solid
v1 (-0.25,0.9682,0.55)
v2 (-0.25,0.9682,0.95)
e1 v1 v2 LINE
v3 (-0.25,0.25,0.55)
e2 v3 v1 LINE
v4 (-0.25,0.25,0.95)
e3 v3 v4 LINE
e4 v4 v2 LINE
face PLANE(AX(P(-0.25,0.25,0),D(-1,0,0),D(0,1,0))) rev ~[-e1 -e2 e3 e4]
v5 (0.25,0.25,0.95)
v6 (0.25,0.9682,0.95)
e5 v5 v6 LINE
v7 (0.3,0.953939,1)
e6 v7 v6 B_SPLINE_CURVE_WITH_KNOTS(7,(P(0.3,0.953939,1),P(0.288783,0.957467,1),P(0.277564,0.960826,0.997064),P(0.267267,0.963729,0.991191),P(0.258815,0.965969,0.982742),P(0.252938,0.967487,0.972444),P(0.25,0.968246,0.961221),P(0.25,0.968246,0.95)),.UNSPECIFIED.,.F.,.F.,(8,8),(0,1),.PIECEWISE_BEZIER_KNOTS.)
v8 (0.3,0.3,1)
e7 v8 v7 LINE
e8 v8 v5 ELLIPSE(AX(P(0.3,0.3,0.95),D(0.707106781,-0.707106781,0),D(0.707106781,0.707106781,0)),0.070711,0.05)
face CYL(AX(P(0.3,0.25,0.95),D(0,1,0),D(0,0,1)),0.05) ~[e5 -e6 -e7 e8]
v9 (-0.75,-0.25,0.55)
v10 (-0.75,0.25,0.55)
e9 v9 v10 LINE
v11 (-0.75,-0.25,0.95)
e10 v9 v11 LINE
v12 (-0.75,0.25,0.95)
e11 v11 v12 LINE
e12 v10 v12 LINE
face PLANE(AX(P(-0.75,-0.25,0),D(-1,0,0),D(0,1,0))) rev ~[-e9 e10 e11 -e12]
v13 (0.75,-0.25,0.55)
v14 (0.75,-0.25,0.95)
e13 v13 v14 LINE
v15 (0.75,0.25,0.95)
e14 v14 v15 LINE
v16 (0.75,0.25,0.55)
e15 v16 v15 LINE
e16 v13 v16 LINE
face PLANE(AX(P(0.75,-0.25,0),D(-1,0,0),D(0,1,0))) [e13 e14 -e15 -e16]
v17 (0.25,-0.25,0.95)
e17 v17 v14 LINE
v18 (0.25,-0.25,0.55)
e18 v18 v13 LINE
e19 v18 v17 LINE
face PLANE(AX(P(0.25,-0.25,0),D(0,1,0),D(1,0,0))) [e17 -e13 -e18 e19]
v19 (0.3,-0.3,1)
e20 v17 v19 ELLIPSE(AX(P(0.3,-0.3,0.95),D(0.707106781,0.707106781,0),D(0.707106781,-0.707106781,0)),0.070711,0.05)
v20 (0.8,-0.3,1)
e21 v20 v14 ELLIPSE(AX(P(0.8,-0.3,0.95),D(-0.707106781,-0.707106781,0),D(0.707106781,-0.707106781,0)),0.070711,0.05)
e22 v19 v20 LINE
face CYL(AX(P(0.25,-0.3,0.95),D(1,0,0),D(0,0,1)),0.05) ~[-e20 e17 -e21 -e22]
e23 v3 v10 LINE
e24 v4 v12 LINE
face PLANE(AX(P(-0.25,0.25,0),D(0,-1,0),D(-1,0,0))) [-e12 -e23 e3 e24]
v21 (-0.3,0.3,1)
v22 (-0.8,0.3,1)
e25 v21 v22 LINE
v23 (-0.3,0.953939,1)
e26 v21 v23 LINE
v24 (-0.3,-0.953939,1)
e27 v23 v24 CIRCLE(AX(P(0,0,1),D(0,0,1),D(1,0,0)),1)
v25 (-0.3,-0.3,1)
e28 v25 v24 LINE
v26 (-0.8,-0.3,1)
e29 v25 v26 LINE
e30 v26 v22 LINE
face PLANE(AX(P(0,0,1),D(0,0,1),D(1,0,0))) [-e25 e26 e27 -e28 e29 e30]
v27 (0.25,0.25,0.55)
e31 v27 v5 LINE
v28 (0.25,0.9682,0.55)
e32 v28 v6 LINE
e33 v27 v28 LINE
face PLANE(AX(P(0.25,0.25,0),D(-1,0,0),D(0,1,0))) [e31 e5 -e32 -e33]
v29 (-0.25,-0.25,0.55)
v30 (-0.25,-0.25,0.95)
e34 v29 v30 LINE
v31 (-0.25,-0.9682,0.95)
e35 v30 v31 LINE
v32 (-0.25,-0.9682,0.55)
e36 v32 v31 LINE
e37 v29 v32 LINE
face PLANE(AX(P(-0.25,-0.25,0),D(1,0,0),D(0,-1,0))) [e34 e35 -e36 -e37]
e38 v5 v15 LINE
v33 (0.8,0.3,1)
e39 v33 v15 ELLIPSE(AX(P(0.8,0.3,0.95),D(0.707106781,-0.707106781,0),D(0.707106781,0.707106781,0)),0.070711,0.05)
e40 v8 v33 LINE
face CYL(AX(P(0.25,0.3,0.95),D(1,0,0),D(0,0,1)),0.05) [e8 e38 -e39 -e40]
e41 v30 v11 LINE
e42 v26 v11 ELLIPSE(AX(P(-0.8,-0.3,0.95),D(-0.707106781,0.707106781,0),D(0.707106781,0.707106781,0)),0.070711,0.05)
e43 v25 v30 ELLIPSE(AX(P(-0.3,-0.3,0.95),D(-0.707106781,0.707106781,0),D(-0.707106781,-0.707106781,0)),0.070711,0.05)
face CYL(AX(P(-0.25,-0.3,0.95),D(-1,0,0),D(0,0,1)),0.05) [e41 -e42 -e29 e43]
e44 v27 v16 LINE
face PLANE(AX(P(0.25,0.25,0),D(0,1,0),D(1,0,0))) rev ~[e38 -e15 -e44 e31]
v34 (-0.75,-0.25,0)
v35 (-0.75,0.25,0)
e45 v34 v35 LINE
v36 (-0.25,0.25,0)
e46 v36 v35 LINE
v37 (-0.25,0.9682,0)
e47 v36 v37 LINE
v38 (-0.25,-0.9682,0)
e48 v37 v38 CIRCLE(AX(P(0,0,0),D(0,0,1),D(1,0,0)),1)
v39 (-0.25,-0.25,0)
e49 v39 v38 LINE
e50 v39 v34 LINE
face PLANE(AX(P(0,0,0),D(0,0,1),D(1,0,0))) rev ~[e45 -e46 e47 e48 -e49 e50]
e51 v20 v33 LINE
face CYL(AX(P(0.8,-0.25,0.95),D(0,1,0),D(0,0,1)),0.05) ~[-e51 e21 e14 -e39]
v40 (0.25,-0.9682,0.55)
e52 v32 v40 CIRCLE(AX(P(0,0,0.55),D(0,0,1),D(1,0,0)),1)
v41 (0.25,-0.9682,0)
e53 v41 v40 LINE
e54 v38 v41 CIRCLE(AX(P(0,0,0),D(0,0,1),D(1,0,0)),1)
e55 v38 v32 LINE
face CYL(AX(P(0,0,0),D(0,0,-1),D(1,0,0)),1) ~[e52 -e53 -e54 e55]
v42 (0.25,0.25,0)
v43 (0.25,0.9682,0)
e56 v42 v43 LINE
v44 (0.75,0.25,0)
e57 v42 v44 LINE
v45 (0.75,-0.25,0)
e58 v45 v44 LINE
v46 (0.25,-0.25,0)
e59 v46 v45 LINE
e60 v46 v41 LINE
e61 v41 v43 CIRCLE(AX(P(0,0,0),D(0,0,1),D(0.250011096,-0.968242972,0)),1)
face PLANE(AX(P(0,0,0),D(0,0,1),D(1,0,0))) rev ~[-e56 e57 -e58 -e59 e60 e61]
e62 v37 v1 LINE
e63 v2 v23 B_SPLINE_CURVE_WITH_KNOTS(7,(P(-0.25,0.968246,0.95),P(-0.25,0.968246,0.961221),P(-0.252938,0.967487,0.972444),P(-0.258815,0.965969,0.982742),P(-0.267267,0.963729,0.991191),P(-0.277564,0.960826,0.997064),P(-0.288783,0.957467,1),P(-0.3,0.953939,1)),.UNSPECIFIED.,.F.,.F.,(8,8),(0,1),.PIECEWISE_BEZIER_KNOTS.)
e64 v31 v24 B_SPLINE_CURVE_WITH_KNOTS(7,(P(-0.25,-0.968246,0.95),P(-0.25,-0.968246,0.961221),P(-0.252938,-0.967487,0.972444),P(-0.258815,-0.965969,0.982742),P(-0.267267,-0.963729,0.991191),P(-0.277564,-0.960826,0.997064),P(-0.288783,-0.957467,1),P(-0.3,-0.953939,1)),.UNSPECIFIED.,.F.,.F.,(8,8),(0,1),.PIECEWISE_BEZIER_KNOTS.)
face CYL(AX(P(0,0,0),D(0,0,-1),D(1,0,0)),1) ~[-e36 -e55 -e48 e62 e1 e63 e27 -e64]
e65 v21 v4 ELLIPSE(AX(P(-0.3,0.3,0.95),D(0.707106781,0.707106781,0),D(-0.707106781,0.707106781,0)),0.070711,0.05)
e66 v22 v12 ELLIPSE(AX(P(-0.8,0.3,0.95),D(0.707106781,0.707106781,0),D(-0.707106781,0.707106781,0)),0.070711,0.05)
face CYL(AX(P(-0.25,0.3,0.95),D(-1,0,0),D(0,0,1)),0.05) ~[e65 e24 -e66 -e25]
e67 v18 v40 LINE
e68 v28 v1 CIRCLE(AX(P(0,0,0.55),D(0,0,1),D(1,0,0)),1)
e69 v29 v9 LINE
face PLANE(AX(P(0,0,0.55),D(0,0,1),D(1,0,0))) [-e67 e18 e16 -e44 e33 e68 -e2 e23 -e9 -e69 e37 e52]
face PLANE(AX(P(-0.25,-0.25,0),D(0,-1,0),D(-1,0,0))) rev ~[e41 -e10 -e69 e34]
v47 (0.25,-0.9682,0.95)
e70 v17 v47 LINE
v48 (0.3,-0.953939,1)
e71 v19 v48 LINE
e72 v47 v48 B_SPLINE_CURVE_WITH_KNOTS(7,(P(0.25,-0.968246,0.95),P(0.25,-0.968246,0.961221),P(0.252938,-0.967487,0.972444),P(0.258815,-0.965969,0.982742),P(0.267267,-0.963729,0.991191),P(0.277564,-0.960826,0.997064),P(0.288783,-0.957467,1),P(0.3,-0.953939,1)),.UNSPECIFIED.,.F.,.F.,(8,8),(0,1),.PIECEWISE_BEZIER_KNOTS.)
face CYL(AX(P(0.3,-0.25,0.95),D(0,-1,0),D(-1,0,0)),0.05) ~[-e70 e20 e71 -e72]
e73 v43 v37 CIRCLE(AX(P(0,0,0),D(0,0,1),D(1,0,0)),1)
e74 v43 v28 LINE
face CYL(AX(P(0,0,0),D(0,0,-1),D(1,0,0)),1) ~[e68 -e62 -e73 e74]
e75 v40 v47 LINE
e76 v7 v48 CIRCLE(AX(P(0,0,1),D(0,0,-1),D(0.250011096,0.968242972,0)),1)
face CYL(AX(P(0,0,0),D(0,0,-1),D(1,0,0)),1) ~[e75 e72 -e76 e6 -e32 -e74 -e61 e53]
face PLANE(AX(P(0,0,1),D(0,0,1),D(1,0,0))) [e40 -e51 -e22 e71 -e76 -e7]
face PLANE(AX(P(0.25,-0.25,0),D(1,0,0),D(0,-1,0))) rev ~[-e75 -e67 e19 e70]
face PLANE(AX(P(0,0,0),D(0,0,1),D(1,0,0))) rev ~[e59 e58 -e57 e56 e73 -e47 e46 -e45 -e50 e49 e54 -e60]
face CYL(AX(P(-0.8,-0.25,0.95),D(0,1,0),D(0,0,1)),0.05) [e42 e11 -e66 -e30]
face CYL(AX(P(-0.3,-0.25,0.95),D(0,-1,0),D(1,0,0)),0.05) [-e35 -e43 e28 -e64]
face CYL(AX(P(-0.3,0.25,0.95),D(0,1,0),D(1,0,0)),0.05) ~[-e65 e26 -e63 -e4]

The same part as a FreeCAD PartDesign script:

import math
import FreeCAD as App
import Part
import Sketcher


def edges_at(feature, points):
    """Names of the edges that pass closest to the given points."""
    edges = feature.Shape.Edges
    near = lambda p: min(range(len(edges)), key=lambda i: edges[i].distToShape(Part.Vertex(*p))[0])
    return sorted({f"Edge{near(p) + 1}" for p in points})

doc = App.newDocument("Part")
params = doc.addObject("Spreadsheet::Sheet", "Params")
for row, (alias, value) in enumerate([
    ("sketch1_radius", "1 mm"),
    ("sketch1_width", "0.5 mm"),
    ("pad1_length", "0.55 mm"),
    ("sketch2_radius", "1 mm"),
    ("sketch2_width", "0.5 mm"),
    ("pad2_length", "1 mm"),
    ("fillet_radius", "0.05 mm"),
], start=1):
    params.set(f"A{row}", alias)
    params.set(f"B{row}", "=" + value)
    params.setAlias(f"B{row}", alias)

body = doc.addObject("PartDesign::Body", "Body")

# Sketch on XY plane
sketch1 = doc.addObject("Sketcher::SketchObject", "Sketch")
body.addObject(sketch1)
sketch1.AttachmentSupport = (doc.XY_Plane, [""])
sketch1.MapMode = "FlatFace"
sketch1.addGeometry([
    Part.LineSegment(App.Vector(0.2, 0.2, 0), App.Vector(0.2, 1, 0)),  # 0
    Part.ArcOfCircle(Part.Circle(App.Vector(0, 0, 0), App.Vector(0, 0, 1), 1), math.radians(76), math.radians(104)),  # 1
    Part.LineSegment(App.Vector(-0.2, 1, 0), App.Vector(-0.2, 0.2, 0)),  # 2
    Part.LineSegment(App.Vector(-0.2, 0.2, 0), App.Vector(-0.8, 0.2, 0)),  # 3
    Part.LineSegment(App.Vector(-0.8, 0.2, 0), App.Vector(-0.8, -0.2, 0)),  # 4
    Part.LineSegment(App.Vector(-0.8, -0.2, 0), App.Vector(-0.2, -0.2, 0)),  # 5
    Part.LineSegment(App.Vector(-0.2, -0.2, 0), App.Vector(-0.2, -1, 0)),  # 6
    Part.ArcOfCircle(Part.Circle(App.Vector(0, 0, 0), App.Vector(0, 0, 1), 1), math.radians(-104), math.radians(-76)),  # 7
    Part.LineSegment(App.Vector(0.2, -1, 0), App.Vector(0.2, -0.2, 0)),  # 8
    Part.LineSegment(App.Vector(0.2, -0.2, 0), App.Vector(0.8, -0.2, 0)),  # 9
    Part.LineSegment(App.Vector(0.8, -0.2, 0), App.Vector(0.8, 0.2, 0)),  # 10
    Part.LineSegment(App.Vector(0.8, 0.2, 0), App.Vector(0.2, 0.2, 0)),  # 11
], False)
sketch1.addConstraint([
    Sketcher.Constraint("Coincident", 0, 2, 1, 1),
    Sketcher.Constraint("Coincident", 1, 2, 2, 1),
    Sketcher.Constraint("Coincident", 2, 2, 3, 1),
    Sketcher.Constraint("Coincident", 3, 2, 4, 1),
    Sketcher.Constraint("Coincident", 4, 2, 5, 1),
    Sketcher.Constraint("Coincident", 5, 2, 6, 1),
    Sketcher.Constraint("Coincident", 6, 2, 7, 1),
    Sketcher.Constraint("Coincident", 7, 2, 8, 1),
    Sketcher.Constraint("Coincident", 8, 2, 9, 1),
    Sketcher.Constraint("Coincident", 9, 2, 10, 1),
    Sketcher.Constraint("Coincident", 10, 2, 11, 1),
    Sketcher.Constraint("Coincident", 11, 2, 0, 1),
    Sketcher.Constraint("Vertical", 0),
    Sketcher.Constraint("Vertical", 2),
    Sketcher.Constraint("Horizontal", 3),
    Sketcher.Constraint("Vertical", 4),
    Sketcher.Constraint("Horizontal", 5),
    Sketcher.Constraint("Vertical", 6),
    Sketcher.Constraint("Vertical", 8),
    Sketcher.Constraint("Horizontal", 9),
    Sketcher.Constraint("Vertical", 10),
    Sketcher.Constraint("Horizontal", 11),
    Sketcher.Constraint("Coincident", 1, 3, -1, 1),
    Sketcher.Constraint("Coincident", 7, 3, -1, 1),
    Sketcher.Constraint("Equal", 1, 7),
    Sketcher.Constraint("Symmetric", 2, 2, 8, 2, -1, 1),
    Sketcher.Constraint("Symmetric", 4, 2, 10, 2, -1, 1),
    Sketcher.Constraint("Symmetric", 5, 2, 8, 2, -2),
    Sketcher.Constraint("Horizontal", 0, 2, 1, 2),
    Sketcher.Constraint("Equal", 11, 4),
    Sketcher.Constraint("Radius", 1, 1.0),
    Sketcher.Constraint("DistanceX", 3, 2, 3, 1, 0.5),
    Sketcher.Constraint("DistanceX", 3, 2, 0, 2, 1.0),
])
sketch1.setExpression("Constraints[30]", "Params.sketch1_radius")
sketch1.setExpression("Constraints[31]", "Params.sketch1_width")
pad1 = doc.addObject("PartDesign::Pad", "Pad")
body.addObject(pad1)
pad1.Profile = sketch1
pad1.setExpression("Length", "Params.pad1_length")

# Sketch on XY plane
sketch2 = doc.addObject("Sketcher::SketchObject", "Sketch001")
body.addObject(sketch2)
sketch2.AttachmentSupport = (doc.XY_Plane, [""])
sketch2.MapMode = "FlatFace"
sketch2.addGeometry([
    Part.ArcOfCircle(Part.Circle(App.Vector(0, 0, 0), App.Vector(0, 0, 1), 1), math.radians(-76), math.radians(76)),  # 0
    Part.LineSegment(App.Vector(0.2, 1, 0), App.Vector(0.2, 0.2, 0)),  # 1
    Part.LineSegment(App.Vector(0.2, 0.2, 0), App.Vector(0.8, 0.2, 0)),  # 2
    Part.LineSegment(App.Vector(0.8, 0.2, 0), App.Vector(0.8, -0.2, 0)),  # 3
    Part.LineSegment(App.Vector(0.8, -0.2, 0), App.Vector(0.2, -0.2, 0)),  # 4
    Part.LineSegment(App.Vector(0.2, -0.2, 0), App.Vector(0.2, -1, 0)),  # 5
    Part.LineSegment(App.Vector(-0.2, 0.2, 0), App.Vector(-0.2, 1, 0)),  # 6
    Part.ArcOfCircle(Part.Circle(App.Vector(0, 0, 0), App.Vector(0, 0, 1), 1), math.radians(104), math.radians(256)),  # 7
    Part.LineSegment(App.Vector(-0.2, -1, 0), App.Vector(-0.2, -0.2, 0)),  # 8
    Part.LineSegment(App.Vector(-0.2, -0.2, 0), App.Vector(-0.8, -0.2, 0)),  # 9
    Part.LineSegment(App.Vector(-0.8, -0.2, 0), App.Vector(-0.8, 0.2, 0)),  # 10
    Part.LineSegment(App.Vector(-0.8, 0.2, 0), App.Vector(-0.2, 0.2, 0)),  # 11
], False)
sketch2.addConstraint([
    Sketcher.Constraint("Coincident", 0, 2, 1, 1),
    Sketcher.Constraint("Coincident", 1, 2, 2, 1),
    Sketcher.Constraint("Coincident", 2, 2, 3, 1),
    Sketcher.Constraint("Coincident", 3, 2, 4, 1),
    Sketcher.Constraint("Coincident", 4, 2, 5, 1),
    Sketcher.Constraint("Coincident", 5, 2, 0, 1),
    Sketcher.Constraint("Coincident", 6, 2, 7, 1),
    Sketcher.Constraint("Coincident", 7, 2, 8, 1),
    Sketcher.Constraint("Coincident", 8, 2, 9, 1),
    Sketcher.Constraint("Coincident", 9, 2, 10, 1),
    Sketcher.Constraint("Coincident", 10, 2, 11, 1),
    Sketcher.Constraint("Coincident", 11, 2, 6, 1),
    Sketcher.Constraint("Vertical", 1),
    Sketcher.Constraint("Horizontal", 2),
    Sketcher.Constraint("Vertical", 3),
    Sketcher.Constraint("Horizontal", 4),
    Sketcher.Constraint("Vertical", 5),
    Sketcher.Constraint("Vertical", 6),
    Sketcher.Constraint("Vertical", 8),
    Sketcher.Constraint("Horizontal", 9),
    Sketcher.Constraint("Vertical", 10),
    Sketcher.Constraint("Horizontal", 11),
    Sketcher.Constraint("Coincident", 0, 3, -1, 1),
    Sketcher.Constraint("Coincident", 7, 3, -1, 1),
    Sketcher.Constraint("Equal", 0, 7),
    Sketcher.Constraint("Symmetric", 1, 2, 8, 2, -1, 1),
    Sketcher.Constraint("Symmetric", 3, 2, 10, 2, -1, 1),
    Sketcher.Constraint("Symmetric", 4, 2, 8, 2, -2),
    Sketcher.Constraint("Horizontal", 0, 2, 6, 2),
    Sketcher.Constraint("Equal", 11, 3),
    Sketcher.Constraint("Radius", 0, 1.0),
    Sketcher.Constraint("DistanceX", 2, 1, 2, 2, 0.5),
    Sketcher.Constraint("DistanceX", 6, 2, 2, 2, 1.0),
])
sketch2.setExpression("Constraints[30]", "Params.sketch2_radius")
sketch2.setExpression("Constraints[31]", "Params.sketch2_width")
pad2 = doc.addObject("PartDesign::Pad", "Pad001")
body.addObject(pad2)
pad2.Profile = sketch2
pad2.setExpression("Length", "Params.pad2_length")
doc.recompute()

fillet = doc.addObject("PartDesign::Fillet", "Fillet")
body.addObject(fillet)
fillet.Base = (pad2, edges_at(pad2, [
    (-0.5, 0.25, 1),
    (-0.25, 0.609, 1),
    (-0.75, 0, 1),
    (-0.5, -0.25, 1),
    (-0.25, -0.609, 1),
    (0.25, -0.609, 1),
    (0.5, -0.25, 1),
    (0.5, 0.25, 1),
    (0.75, 0, 1),
    (0.25, 0.609, 1),
]))
fillet.setExpression("Radius", "Params.fillet_radius")

doc.recompute()
